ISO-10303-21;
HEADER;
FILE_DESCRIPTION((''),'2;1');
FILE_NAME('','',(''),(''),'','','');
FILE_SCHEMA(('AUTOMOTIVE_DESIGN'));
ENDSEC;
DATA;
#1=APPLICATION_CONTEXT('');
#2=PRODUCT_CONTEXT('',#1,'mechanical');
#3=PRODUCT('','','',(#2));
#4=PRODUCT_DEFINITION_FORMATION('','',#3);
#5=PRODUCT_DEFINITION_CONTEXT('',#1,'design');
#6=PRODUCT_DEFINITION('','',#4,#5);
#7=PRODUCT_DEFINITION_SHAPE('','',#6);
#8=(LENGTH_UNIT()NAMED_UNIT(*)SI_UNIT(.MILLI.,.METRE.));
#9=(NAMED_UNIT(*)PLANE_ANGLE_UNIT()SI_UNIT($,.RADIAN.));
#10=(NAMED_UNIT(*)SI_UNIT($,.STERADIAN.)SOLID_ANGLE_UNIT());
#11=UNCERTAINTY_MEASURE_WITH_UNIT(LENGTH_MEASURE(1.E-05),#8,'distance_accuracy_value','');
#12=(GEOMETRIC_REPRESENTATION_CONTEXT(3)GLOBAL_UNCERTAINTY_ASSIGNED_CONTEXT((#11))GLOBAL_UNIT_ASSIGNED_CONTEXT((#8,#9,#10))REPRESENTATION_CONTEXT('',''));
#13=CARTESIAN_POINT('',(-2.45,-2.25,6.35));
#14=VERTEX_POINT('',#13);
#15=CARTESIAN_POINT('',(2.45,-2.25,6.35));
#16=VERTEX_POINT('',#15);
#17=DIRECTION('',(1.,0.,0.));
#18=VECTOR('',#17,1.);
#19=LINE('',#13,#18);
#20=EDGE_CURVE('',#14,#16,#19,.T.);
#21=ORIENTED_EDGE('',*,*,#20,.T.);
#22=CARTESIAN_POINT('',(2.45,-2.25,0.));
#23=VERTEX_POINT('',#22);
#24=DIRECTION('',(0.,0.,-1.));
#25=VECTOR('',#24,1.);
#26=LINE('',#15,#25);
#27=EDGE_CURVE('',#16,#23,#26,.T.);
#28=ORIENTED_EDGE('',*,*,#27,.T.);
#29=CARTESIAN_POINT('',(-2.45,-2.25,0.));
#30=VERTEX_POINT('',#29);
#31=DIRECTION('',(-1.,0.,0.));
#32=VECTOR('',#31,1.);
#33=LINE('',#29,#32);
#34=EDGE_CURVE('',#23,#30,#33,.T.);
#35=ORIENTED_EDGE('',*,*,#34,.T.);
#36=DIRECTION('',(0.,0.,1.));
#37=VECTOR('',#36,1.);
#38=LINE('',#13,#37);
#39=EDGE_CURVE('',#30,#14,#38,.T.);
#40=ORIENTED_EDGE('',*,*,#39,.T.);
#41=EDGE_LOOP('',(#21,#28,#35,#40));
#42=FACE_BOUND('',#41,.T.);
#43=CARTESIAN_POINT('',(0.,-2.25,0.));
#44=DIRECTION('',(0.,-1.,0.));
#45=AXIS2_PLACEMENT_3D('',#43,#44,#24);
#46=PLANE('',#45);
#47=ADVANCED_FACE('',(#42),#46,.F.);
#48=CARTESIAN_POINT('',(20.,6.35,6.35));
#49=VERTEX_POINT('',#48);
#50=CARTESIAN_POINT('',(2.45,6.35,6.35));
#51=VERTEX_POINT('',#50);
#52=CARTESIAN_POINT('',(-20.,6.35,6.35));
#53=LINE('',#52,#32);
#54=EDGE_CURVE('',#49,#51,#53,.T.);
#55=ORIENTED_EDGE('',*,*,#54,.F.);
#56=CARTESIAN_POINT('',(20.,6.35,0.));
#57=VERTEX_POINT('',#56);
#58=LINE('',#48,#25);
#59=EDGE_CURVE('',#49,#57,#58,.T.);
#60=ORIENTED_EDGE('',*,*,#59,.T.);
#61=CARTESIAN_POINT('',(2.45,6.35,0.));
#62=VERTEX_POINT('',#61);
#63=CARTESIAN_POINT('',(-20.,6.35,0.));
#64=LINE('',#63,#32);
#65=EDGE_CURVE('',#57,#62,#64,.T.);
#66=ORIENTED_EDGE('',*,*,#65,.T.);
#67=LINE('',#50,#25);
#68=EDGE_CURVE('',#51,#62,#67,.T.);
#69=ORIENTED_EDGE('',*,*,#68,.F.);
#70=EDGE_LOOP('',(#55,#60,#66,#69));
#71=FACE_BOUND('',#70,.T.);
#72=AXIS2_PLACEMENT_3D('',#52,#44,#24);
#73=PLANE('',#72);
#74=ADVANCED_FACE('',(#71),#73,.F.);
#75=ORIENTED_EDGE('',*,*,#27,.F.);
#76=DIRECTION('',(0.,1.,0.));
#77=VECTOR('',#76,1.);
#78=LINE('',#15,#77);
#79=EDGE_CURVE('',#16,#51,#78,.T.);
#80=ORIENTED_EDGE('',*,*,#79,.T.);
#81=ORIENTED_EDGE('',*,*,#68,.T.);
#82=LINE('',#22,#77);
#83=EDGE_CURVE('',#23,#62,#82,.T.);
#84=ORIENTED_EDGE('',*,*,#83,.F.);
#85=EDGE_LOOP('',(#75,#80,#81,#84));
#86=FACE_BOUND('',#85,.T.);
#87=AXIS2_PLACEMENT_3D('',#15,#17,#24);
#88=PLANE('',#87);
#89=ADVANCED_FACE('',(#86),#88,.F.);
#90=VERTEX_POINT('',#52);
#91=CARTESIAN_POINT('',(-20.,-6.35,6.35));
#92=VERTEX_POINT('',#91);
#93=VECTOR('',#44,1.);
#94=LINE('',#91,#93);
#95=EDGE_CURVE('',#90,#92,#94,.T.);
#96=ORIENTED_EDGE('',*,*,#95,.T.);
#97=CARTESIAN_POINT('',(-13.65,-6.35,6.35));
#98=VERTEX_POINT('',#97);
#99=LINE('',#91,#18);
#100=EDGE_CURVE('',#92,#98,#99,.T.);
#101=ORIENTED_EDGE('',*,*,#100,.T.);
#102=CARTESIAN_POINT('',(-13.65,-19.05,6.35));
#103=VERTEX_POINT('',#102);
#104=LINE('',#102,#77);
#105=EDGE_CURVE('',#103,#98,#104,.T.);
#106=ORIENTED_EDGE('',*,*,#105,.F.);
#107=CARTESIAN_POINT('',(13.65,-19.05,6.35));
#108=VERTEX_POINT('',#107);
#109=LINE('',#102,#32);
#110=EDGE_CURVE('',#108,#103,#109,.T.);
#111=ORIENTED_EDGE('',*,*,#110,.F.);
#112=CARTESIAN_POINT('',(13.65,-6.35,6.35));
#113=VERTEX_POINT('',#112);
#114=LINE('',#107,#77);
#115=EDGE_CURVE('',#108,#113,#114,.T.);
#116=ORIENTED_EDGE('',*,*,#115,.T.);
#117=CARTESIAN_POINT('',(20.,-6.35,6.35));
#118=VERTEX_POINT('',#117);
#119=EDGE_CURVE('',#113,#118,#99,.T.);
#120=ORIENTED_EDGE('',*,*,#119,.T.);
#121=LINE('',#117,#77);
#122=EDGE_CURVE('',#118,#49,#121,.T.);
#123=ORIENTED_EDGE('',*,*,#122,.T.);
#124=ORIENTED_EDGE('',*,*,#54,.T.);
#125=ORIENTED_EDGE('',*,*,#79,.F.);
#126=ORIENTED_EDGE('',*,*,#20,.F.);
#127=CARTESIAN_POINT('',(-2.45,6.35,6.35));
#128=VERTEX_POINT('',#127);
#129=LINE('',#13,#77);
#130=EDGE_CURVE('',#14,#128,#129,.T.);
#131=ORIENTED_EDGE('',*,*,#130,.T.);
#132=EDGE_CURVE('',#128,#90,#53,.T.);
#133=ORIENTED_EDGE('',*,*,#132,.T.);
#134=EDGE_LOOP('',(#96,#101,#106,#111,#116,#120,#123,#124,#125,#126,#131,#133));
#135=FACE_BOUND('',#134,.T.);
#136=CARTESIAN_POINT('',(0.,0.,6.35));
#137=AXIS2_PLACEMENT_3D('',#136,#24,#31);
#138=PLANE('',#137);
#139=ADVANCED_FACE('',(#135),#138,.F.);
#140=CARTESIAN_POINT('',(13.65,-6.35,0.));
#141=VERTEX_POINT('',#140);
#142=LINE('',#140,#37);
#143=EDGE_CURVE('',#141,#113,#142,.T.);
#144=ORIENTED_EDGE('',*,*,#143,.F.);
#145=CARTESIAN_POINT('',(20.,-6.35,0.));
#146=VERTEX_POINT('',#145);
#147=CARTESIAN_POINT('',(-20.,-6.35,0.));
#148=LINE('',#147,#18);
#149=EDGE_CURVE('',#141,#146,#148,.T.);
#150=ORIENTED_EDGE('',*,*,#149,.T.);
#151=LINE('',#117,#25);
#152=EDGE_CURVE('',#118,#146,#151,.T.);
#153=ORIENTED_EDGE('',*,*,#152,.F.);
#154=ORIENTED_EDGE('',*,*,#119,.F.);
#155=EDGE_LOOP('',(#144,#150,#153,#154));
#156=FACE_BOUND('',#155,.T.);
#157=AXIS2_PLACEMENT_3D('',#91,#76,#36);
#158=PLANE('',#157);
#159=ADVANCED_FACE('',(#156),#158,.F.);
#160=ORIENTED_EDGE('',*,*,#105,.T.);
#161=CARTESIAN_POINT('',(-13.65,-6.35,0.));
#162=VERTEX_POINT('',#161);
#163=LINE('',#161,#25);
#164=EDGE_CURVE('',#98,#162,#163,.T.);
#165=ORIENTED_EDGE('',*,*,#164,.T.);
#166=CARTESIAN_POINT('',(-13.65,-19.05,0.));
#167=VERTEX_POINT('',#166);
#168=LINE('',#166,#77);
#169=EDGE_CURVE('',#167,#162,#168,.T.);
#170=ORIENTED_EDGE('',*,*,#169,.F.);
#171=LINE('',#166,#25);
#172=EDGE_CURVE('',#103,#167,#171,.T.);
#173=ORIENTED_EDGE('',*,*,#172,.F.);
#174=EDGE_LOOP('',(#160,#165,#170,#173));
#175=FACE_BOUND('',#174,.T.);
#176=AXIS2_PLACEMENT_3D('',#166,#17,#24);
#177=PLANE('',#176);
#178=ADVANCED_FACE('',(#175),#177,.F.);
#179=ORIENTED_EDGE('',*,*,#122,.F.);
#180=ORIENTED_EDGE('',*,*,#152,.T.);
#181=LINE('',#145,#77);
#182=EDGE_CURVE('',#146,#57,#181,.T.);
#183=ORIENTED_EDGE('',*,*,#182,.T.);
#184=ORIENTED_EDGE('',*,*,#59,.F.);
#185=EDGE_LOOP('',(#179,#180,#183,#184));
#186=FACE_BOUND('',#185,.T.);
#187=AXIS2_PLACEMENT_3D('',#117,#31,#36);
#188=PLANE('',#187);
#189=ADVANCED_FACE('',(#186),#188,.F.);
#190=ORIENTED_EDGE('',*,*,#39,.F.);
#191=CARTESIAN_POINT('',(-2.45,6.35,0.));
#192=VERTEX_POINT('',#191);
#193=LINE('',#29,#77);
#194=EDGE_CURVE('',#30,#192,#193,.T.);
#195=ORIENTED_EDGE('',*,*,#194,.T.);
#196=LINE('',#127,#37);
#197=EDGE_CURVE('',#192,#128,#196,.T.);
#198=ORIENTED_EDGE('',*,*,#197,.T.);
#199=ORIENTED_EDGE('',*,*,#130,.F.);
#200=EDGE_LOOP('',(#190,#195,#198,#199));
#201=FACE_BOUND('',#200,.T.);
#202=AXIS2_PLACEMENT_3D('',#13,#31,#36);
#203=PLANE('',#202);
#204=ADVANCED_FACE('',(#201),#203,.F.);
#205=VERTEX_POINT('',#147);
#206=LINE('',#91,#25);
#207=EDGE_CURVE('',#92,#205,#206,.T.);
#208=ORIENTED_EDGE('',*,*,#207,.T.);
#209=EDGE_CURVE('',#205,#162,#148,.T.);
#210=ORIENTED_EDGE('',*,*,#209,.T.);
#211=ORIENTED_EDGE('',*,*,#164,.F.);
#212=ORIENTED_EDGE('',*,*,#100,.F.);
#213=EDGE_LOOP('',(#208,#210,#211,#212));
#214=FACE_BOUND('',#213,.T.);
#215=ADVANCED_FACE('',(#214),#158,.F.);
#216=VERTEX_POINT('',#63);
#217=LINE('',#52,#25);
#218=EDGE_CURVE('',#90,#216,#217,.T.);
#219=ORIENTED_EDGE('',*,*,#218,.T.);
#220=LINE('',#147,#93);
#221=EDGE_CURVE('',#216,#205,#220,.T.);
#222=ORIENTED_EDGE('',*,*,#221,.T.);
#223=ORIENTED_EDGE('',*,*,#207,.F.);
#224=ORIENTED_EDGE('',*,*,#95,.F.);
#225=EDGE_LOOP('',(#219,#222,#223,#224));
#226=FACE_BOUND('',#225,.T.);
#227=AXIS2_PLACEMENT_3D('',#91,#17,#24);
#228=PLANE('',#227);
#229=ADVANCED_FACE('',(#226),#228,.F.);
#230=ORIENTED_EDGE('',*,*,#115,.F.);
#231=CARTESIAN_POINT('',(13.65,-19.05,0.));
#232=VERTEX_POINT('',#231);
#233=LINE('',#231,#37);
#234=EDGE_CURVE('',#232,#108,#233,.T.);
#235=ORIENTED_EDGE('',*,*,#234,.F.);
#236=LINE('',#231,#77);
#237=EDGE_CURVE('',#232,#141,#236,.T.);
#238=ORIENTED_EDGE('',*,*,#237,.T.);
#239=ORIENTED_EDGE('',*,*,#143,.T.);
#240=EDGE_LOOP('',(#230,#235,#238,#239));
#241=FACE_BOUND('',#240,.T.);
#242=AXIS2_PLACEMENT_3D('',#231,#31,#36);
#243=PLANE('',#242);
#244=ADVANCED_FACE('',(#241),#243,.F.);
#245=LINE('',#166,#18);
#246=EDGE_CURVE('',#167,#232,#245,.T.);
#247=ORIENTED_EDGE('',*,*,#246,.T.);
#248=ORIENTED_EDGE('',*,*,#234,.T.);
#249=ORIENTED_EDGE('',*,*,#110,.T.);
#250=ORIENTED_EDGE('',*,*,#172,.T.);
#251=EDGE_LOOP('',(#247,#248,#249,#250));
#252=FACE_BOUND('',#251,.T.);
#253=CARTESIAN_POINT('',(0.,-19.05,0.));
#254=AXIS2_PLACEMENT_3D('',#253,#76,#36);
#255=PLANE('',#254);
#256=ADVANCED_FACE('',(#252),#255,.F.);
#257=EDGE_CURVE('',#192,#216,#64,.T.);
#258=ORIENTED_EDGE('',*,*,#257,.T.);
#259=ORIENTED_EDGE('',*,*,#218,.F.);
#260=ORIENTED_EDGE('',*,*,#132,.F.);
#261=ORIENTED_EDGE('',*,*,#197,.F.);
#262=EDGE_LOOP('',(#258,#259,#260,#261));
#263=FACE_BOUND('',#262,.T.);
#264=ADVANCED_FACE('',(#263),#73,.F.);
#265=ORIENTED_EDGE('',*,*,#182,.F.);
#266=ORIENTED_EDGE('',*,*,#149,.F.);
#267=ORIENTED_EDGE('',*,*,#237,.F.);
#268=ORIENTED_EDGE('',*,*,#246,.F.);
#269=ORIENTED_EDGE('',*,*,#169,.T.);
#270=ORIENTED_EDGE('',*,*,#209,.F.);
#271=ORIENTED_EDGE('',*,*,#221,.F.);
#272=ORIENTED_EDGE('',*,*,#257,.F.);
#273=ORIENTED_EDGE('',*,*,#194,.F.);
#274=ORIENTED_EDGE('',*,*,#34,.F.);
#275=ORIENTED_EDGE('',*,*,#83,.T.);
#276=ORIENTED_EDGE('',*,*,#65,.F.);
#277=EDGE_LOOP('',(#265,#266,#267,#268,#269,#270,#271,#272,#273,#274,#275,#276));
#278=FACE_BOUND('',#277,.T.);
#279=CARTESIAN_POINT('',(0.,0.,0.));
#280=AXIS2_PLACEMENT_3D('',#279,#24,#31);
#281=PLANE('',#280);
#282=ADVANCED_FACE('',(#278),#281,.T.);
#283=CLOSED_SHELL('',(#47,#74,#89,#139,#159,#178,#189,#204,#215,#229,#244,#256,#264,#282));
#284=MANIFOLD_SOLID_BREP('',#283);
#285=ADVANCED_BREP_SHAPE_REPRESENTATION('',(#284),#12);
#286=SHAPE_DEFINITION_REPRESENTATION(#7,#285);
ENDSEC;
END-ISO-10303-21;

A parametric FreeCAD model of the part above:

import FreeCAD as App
import Part
import Sketcher
from FreeCAD import Vector
Q = App.Units.Quantity

doc = App.newDocument("Part")
body = doc.addObject("PartDesign::Body", "Body")

sketch1 = doc.addObject("Sketcher::SketchObject", "Sketch")
body.addObject(sketch1)
sketch1.AttachmentSupport = (doc.XY_Plane, [""])
sketch1.MapMode = "FlatFace"
sketch1.addGeometry(Part.LineSegment(Vector(-20, 6, 0), Vector(-20, -6, 0)), False)
sketch1.addGeometry(Part.LineSegment(Vector(-20, -6, 0), Vector(20, -6, 0)), False)
sketch1.addGeometry(Part.LineSegment(Vector(20, -6, 0), Vector(20, 6, 0)), False)
sketch1.addGeometry(Part.LineSegment(Vector(20, 6, 0), Vector(-20, 6, 0)), False)
sketch1.addConstraint(Sketcher.Constraint("Coincident", 0, 2, 1, 1))
sketch1.addConstraint(Sketcher.Constraint("Coincident", 1, 2, 2, 1))
sketch1.addConstraint(Sketcher.Constraint("Coincident", 2, 2, 3, 1))
sketch1.addConstraint(Sketcher.Constraint("Coincident", 3, 2, 0, 1))
sketch1.addConstraint(Sketcher.Constraint("Vertical", 0))
sketch1.addConstraint(Sketcher.Constraint("Horizontal", 1))
sketch1.addConstraint(Sketcher.Constraint("Vertical", 2))
sketch1.addConstraint(Sketcher.Constraint("Horizontal", 3))
sketch1.addConstraint(Sketcher.Constraint("Symmetric", 0, 2, 2, 2, -1, 1))
sketch1.addConstraint(Sketcher.Constraint("DistanceX", 1, 1, 1, 2, Q("40 mm")))
sketch1.addConstraint(Sketcher.Constraint("DistanceY", 0, 2, 0, 1, Q("12.7 mm")))
pad1 = doc.addObject("PartDesign::Pad", "Pad")
body.addObject(pad1)
pad1.Profile = sketch1
pad1.Length = 6.35

sketch2 = doc.addObject("Sketcher::SketchObject", "Sketch001")
body.addObject(sketch2)
sketch2.AttachmentSupport = (doc.XZ_Plane, [""])
sketch2.MapMode = "FlatFace"
sketch2.AttachmentOffset = App.Placement(Vector(0, 0, 6.35), App.Rotation())
sketch2.addGeometry(Part.LineSegment(Vector(-14, 6, 0), Vector(-14, 0, 0)), False)
sketch2.addGeometry(Part.LineSegment(Vector(-14, 0, 0), Vector(14, 0, 0)), False)
sketch2.addGeometry(Part.LineSegment(Vector(14, 0, 0), Vector(14, 6, 0)), False)
sketch2.addGeometry(Part.LineSegment(Vector(14, 6, 0), Vector(-14, 6, 0)), False)
sketch2.addConstraint(Sketcher.Constraint("Coincident", 0, 2, 1, 1))
sketch2.addConstraint(Sketcher.Constraint("Coincident", 1, 2, 2, 1))
sketch2.addConstraint(Sketcher.Constraint("Coincident", 2, 2, 3, 1))
sketch2.addConstraint(Sketcher.Constraint("Coincident", 3, 2, 0, 1))
sketch2.addConstraint(Sketcher.Constraint("Vertical", 0))
sketch2.addConstraint(Sketcher.Constraint("Horizontal", 1))
sketch2.addConstraint(Sketcher.Constraint("Vertical", 2))
sketch2.addConstraint(Sketcher.Constraint("Horizontal", 3))
sketch2.addConstraint(Sketcher.Constraint("Symmetric", 0, 2, 1, 2, -1, 1))
sketch2.addConstraint(Sketcher.Constraint("DistanceX", 1, 1, 1, 2, Q("27.3 mm")))
sketch2.addConstraint(Sketcher.Constraint("DistanceY", 0, 2, 0, 1, Q("6.35 mm")))
pad2 = doc.addObject("PartDesign::Pad", "Pad001")
body.addObject(pad2)
pad2.Profile = sketch2
pad2.Length = 12.7

sketch3 = doc.addObject("Sketcher::SketchObject", "Sketch002")
body.addObject(sketch3)
sketch3.AttachmentSupport = (doc.XZ_Plane, [""])
sketch3.MapMode = "FlatFace"
sketch3.AttachmentOffset = App.Placement(Vector(0, 0, -6.35), App.Rotation())
sketch3.addGeometry(Part.LineSegment(Vector(-2.5, 0, 0), Vector(-2.5, 6.3, 0)), False)
sketch3.addGeometry(Part.LineSegment(Vector(-2.5, 6.3, 0), Vector(2.5, 6.3, 0)), False)
sketch3.addGeometry(Part.LineSegment(Vector(2.5, 6.3, 0), Vector(2.5, 0, 0)), False)
sketch3.addGeometry(Part.LineSegment(Vector(2.5, 0, 0), Vector(-2.5, 0, 0)), False)
sketch3.addConstraint(Sketcher.Constraint("Coincident", 0, 2, 1, 1))
sketch3.addConstraint(Sketcher.Constraint("Coincident", 1, 2, 2, 1))
sketch3.addConstraint(Sketcher.Constraint("Coincident", 2, 2, 3, 1))
sketch3.addConstraint(Sketcher.Constraint("Coincident", 3, 2, 0, 1))
sketch3.addConstraint(Sketcher.Constraint("Vertical", 0))
sketch3.addConstraint(Sketcher.Constraint("Horizontal", 1))
sketch3.addConstraint(Sketcher.Constraint("Vertical", 2))
sketch3.addConstraint(Sketcher.Constraint("Horizontal", 3))
sketch3.addConstraint(Sketcher.Constraint("Symmetric", 2, 2, 3, 2, -1, 1))
sketch3.addConstraint(Sketcher.Constraint("DistanceX", 1, 1, 1, 2, Q("4.9 mm")))
sketch3.addConstraint(Sketcher.Constraint("DistanceY", 0, 1, 0, 2, Q("6.35 mm")))
pocket1 = doc.addObject("PartDesign::Pocket", "Pocket")
body.addObject(pocket1)
pocket1.Profile = sketch3
pocket1.Length = 8.6
pocket1.Reversed = True

doc.recompute()
